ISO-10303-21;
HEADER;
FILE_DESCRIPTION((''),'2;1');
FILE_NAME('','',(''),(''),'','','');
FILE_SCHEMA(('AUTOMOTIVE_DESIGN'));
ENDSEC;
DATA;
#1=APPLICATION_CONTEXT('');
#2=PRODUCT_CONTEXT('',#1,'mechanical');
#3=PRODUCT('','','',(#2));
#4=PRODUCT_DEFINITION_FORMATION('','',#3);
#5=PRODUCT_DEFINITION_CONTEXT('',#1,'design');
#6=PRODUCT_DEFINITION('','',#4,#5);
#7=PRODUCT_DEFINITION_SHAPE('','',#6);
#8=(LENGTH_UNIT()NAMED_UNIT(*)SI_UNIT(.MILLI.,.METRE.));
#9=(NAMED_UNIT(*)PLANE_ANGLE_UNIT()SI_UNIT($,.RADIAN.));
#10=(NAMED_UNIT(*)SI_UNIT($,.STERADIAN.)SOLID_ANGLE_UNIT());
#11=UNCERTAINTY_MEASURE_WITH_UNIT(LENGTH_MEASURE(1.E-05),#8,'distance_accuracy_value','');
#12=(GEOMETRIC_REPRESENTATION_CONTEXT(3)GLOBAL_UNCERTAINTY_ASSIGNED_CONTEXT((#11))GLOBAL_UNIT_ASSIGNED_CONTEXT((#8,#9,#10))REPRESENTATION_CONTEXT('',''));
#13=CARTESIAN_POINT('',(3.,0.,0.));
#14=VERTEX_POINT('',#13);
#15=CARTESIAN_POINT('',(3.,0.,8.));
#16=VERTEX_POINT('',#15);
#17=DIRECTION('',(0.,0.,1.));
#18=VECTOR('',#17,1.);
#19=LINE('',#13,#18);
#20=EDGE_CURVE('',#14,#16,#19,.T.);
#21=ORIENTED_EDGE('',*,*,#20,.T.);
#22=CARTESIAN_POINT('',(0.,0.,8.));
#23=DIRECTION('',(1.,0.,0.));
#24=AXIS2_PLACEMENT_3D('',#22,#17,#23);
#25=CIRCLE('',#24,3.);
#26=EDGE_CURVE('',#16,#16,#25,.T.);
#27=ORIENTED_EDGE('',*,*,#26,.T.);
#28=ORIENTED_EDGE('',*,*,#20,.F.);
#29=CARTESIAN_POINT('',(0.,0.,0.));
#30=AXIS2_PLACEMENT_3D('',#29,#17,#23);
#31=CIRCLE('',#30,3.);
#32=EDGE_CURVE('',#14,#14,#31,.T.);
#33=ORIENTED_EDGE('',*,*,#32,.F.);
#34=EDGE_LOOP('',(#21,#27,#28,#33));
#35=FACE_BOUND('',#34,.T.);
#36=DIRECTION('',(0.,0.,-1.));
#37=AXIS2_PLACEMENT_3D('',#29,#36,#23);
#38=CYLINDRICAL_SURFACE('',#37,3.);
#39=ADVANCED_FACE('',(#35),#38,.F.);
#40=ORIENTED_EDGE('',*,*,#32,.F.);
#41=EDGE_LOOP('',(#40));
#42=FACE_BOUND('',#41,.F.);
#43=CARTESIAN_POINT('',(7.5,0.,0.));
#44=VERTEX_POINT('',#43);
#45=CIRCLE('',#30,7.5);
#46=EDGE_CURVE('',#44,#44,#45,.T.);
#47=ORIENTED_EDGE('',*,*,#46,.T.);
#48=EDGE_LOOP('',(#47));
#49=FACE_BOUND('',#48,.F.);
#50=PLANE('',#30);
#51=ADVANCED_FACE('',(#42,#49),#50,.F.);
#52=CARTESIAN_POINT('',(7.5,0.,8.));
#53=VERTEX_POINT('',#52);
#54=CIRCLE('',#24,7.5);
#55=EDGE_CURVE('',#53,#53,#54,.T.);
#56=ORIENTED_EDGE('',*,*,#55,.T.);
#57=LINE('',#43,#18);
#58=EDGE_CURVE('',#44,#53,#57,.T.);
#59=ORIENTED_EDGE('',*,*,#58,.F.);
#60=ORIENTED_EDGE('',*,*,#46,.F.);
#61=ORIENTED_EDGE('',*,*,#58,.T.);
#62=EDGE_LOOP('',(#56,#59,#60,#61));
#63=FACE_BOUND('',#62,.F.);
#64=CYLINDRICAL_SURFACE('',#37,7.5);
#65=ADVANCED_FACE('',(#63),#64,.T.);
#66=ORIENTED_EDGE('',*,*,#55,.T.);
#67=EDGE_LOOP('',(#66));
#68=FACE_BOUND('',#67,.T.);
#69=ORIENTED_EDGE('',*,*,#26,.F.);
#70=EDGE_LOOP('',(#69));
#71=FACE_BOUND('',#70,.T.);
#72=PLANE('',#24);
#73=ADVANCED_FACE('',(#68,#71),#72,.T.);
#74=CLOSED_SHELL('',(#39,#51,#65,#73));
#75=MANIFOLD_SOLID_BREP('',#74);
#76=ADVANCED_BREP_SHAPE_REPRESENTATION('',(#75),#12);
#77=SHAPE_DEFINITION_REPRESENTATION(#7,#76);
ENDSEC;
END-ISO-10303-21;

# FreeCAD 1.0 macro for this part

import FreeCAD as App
import Part
import Sketcher

doc = App.newDocument("Part")
params = doc.addObject("Spreadsheet::Sheet", "Params")
for row, (alias, value) in enumerate([
    ("sketch1_diameter", "15 mm"),
    ("sketch1_diameter2", "6 mm"),
    ("pad1_length", "8 mm"),
], start=1):
    params.set(f"A{row}", alias)
    params.set(f"B{row}", "=" + value)
    params.setAlias(f"B{row}", alias)

body = doc.addObject("PartDesign::Body", "Body")

# Sketch on XY plane
sketch1 = body.newObject("Sketcher::SketchObject", "Sketch")
sketch1.AttachmentSupport = (doc.getObject("XY_Plane"), [""])
sketch1.MapMode = "FlatFace"
sketch1.addGeometry(Part.Circle(App.Vector(0, 0, 0), App.Vector(0, 0, 1), 7.5), False)
sketch1.addGeometry(Part.Circle(App.Vector(0, 0, 0), App.Vector(0, 0, 1), 3), False)
sketch1.addConstraint(Sketcher.Constraint("Coincident", 0, 3, -1, 1))
sketch1.addConstraint(Sketcher.Constraint("Coincident", 1, 3, -1, 1))
sketch1.addConstraint(Sketcher.Constraint("Diameter", 0, 15.0))
sketch1.addConstraint(Sketcher.Constraint("Diameter", 1, 6.0))
sketch1.setExpression("Constraints[2]", "Params.sketch1_diameter")
sketch1.setExpression("Constraints[3]", "Params.sketch1_diameter2")
pad1 = body.newObject("PartDesign::Pad", "Pad")
pad1.Profile = sketch1
pad1.setExpression("Length", "Params.pad1_length")

doc.recompute()
